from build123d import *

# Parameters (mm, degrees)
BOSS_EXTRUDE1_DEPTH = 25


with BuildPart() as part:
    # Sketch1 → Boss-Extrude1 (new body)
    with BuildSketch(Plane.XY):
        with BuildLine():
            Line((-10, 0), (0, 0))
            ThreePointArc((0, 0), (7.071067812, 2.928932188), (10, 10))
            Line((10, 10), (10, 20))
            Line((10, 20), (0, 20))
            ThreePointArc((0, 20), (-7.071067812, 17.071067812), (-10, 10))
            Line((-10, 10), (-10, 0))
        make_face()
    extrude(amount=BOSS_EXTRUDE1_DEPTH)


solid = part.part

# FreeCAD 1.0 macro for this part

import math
import FreeCAD as App
import Part
import Sketcher

doc = App.newDocument("Part")
body = doc.addObject("PartDesign::Body", "Body")

sketch1 = doc.addObject("Sketcher::SketchObject", "Sketch")
body.addObject(sketch1)
sketch1.AttachmentSupport = (doc.XY_Plane, [""])
sketch1.MapMode = "FlatFace"
sketch1.addGeometry(Part.LineSegment(App.Vector(-10, 0, 0), App.Vector(0, 0, 0)), False)
sketch1.addGeometry(Part.ArcOfCircle(Part.Circle(App.Vector(0, 10, 0), App.Vector(0, 0, 1), 10), math.radians(-90), math.radians(0)), False)
sketch1.addGeometry(Part.LineSegment(App.Vector(10, 10, 0), App.Vector(10, 20, 0)), False)
sketch1.addGeometry(Part.LineSegment(App.Vector(10, 20, 0), App.Vector(0, 20, 0)), False)
sketch1.addGeometry(Part.ArcOfCircle(Part.Circle(App.Vector(0, 10, 0), App.Vector(0, 0, 1), 10), math.radians(90), math.radians(180)), False)
sketch1.addGeometry(Part.LineSegment(App.Vector(-10, 10, 0), App.Vector(-10, 0, 0)), False)
sketch1.addConstraint(Sketcher.Constraint("Tangent", 0, 2, 1, 1))
sketch1.addConstraint(Sketcher.Constraint("Tangent", 1, 2, 2, 1))
sketch1.addConstraint(Sketcher.Constraint("Coincident", 2, 2, 3, 1))
sketch1.addConstraint(Sketcher.Constraint("Tangent", 3, 2, 4, 1))
sketch1.addConstraint(Sketcher.Constraint("Tangent", 4, 2, 5, 1))
sketch1.addConstraint(Sketcher.Constraint("Coincident", 5, 2, 0, 1))
sketch1.addConstraint(Sketcher.Constraint("Horizontal", 0))
sketch1.addConstraint(Sketcher.Constraint("Vertical", 2))
sketch1.addConstraint(Sketcher.Constraint("Horizontal", 3))
sketch1.addConstraint(Sketcher.Constraint("Vertical", 5))
sketch1.addConstraint(Sketcher.Constraint("Coincident", 0, 2, -1, 1))
sketch1.addConstraint(Sketcher.Constraint("Coincident", 4, 3, 1, 3))
sketch1.addConstraint(Sketcher.Constraint("Equal", 1, 4))
sketch1.addConstraint(Sketcher.Constraint("Radius", 1, 10.0))
pad1 = doc.addObject("PartDesign::Pad", "Pad")
body.addObject(pad1)
pad1.Profile = sketch1
pad1.Length = 25

doc.recompute()
